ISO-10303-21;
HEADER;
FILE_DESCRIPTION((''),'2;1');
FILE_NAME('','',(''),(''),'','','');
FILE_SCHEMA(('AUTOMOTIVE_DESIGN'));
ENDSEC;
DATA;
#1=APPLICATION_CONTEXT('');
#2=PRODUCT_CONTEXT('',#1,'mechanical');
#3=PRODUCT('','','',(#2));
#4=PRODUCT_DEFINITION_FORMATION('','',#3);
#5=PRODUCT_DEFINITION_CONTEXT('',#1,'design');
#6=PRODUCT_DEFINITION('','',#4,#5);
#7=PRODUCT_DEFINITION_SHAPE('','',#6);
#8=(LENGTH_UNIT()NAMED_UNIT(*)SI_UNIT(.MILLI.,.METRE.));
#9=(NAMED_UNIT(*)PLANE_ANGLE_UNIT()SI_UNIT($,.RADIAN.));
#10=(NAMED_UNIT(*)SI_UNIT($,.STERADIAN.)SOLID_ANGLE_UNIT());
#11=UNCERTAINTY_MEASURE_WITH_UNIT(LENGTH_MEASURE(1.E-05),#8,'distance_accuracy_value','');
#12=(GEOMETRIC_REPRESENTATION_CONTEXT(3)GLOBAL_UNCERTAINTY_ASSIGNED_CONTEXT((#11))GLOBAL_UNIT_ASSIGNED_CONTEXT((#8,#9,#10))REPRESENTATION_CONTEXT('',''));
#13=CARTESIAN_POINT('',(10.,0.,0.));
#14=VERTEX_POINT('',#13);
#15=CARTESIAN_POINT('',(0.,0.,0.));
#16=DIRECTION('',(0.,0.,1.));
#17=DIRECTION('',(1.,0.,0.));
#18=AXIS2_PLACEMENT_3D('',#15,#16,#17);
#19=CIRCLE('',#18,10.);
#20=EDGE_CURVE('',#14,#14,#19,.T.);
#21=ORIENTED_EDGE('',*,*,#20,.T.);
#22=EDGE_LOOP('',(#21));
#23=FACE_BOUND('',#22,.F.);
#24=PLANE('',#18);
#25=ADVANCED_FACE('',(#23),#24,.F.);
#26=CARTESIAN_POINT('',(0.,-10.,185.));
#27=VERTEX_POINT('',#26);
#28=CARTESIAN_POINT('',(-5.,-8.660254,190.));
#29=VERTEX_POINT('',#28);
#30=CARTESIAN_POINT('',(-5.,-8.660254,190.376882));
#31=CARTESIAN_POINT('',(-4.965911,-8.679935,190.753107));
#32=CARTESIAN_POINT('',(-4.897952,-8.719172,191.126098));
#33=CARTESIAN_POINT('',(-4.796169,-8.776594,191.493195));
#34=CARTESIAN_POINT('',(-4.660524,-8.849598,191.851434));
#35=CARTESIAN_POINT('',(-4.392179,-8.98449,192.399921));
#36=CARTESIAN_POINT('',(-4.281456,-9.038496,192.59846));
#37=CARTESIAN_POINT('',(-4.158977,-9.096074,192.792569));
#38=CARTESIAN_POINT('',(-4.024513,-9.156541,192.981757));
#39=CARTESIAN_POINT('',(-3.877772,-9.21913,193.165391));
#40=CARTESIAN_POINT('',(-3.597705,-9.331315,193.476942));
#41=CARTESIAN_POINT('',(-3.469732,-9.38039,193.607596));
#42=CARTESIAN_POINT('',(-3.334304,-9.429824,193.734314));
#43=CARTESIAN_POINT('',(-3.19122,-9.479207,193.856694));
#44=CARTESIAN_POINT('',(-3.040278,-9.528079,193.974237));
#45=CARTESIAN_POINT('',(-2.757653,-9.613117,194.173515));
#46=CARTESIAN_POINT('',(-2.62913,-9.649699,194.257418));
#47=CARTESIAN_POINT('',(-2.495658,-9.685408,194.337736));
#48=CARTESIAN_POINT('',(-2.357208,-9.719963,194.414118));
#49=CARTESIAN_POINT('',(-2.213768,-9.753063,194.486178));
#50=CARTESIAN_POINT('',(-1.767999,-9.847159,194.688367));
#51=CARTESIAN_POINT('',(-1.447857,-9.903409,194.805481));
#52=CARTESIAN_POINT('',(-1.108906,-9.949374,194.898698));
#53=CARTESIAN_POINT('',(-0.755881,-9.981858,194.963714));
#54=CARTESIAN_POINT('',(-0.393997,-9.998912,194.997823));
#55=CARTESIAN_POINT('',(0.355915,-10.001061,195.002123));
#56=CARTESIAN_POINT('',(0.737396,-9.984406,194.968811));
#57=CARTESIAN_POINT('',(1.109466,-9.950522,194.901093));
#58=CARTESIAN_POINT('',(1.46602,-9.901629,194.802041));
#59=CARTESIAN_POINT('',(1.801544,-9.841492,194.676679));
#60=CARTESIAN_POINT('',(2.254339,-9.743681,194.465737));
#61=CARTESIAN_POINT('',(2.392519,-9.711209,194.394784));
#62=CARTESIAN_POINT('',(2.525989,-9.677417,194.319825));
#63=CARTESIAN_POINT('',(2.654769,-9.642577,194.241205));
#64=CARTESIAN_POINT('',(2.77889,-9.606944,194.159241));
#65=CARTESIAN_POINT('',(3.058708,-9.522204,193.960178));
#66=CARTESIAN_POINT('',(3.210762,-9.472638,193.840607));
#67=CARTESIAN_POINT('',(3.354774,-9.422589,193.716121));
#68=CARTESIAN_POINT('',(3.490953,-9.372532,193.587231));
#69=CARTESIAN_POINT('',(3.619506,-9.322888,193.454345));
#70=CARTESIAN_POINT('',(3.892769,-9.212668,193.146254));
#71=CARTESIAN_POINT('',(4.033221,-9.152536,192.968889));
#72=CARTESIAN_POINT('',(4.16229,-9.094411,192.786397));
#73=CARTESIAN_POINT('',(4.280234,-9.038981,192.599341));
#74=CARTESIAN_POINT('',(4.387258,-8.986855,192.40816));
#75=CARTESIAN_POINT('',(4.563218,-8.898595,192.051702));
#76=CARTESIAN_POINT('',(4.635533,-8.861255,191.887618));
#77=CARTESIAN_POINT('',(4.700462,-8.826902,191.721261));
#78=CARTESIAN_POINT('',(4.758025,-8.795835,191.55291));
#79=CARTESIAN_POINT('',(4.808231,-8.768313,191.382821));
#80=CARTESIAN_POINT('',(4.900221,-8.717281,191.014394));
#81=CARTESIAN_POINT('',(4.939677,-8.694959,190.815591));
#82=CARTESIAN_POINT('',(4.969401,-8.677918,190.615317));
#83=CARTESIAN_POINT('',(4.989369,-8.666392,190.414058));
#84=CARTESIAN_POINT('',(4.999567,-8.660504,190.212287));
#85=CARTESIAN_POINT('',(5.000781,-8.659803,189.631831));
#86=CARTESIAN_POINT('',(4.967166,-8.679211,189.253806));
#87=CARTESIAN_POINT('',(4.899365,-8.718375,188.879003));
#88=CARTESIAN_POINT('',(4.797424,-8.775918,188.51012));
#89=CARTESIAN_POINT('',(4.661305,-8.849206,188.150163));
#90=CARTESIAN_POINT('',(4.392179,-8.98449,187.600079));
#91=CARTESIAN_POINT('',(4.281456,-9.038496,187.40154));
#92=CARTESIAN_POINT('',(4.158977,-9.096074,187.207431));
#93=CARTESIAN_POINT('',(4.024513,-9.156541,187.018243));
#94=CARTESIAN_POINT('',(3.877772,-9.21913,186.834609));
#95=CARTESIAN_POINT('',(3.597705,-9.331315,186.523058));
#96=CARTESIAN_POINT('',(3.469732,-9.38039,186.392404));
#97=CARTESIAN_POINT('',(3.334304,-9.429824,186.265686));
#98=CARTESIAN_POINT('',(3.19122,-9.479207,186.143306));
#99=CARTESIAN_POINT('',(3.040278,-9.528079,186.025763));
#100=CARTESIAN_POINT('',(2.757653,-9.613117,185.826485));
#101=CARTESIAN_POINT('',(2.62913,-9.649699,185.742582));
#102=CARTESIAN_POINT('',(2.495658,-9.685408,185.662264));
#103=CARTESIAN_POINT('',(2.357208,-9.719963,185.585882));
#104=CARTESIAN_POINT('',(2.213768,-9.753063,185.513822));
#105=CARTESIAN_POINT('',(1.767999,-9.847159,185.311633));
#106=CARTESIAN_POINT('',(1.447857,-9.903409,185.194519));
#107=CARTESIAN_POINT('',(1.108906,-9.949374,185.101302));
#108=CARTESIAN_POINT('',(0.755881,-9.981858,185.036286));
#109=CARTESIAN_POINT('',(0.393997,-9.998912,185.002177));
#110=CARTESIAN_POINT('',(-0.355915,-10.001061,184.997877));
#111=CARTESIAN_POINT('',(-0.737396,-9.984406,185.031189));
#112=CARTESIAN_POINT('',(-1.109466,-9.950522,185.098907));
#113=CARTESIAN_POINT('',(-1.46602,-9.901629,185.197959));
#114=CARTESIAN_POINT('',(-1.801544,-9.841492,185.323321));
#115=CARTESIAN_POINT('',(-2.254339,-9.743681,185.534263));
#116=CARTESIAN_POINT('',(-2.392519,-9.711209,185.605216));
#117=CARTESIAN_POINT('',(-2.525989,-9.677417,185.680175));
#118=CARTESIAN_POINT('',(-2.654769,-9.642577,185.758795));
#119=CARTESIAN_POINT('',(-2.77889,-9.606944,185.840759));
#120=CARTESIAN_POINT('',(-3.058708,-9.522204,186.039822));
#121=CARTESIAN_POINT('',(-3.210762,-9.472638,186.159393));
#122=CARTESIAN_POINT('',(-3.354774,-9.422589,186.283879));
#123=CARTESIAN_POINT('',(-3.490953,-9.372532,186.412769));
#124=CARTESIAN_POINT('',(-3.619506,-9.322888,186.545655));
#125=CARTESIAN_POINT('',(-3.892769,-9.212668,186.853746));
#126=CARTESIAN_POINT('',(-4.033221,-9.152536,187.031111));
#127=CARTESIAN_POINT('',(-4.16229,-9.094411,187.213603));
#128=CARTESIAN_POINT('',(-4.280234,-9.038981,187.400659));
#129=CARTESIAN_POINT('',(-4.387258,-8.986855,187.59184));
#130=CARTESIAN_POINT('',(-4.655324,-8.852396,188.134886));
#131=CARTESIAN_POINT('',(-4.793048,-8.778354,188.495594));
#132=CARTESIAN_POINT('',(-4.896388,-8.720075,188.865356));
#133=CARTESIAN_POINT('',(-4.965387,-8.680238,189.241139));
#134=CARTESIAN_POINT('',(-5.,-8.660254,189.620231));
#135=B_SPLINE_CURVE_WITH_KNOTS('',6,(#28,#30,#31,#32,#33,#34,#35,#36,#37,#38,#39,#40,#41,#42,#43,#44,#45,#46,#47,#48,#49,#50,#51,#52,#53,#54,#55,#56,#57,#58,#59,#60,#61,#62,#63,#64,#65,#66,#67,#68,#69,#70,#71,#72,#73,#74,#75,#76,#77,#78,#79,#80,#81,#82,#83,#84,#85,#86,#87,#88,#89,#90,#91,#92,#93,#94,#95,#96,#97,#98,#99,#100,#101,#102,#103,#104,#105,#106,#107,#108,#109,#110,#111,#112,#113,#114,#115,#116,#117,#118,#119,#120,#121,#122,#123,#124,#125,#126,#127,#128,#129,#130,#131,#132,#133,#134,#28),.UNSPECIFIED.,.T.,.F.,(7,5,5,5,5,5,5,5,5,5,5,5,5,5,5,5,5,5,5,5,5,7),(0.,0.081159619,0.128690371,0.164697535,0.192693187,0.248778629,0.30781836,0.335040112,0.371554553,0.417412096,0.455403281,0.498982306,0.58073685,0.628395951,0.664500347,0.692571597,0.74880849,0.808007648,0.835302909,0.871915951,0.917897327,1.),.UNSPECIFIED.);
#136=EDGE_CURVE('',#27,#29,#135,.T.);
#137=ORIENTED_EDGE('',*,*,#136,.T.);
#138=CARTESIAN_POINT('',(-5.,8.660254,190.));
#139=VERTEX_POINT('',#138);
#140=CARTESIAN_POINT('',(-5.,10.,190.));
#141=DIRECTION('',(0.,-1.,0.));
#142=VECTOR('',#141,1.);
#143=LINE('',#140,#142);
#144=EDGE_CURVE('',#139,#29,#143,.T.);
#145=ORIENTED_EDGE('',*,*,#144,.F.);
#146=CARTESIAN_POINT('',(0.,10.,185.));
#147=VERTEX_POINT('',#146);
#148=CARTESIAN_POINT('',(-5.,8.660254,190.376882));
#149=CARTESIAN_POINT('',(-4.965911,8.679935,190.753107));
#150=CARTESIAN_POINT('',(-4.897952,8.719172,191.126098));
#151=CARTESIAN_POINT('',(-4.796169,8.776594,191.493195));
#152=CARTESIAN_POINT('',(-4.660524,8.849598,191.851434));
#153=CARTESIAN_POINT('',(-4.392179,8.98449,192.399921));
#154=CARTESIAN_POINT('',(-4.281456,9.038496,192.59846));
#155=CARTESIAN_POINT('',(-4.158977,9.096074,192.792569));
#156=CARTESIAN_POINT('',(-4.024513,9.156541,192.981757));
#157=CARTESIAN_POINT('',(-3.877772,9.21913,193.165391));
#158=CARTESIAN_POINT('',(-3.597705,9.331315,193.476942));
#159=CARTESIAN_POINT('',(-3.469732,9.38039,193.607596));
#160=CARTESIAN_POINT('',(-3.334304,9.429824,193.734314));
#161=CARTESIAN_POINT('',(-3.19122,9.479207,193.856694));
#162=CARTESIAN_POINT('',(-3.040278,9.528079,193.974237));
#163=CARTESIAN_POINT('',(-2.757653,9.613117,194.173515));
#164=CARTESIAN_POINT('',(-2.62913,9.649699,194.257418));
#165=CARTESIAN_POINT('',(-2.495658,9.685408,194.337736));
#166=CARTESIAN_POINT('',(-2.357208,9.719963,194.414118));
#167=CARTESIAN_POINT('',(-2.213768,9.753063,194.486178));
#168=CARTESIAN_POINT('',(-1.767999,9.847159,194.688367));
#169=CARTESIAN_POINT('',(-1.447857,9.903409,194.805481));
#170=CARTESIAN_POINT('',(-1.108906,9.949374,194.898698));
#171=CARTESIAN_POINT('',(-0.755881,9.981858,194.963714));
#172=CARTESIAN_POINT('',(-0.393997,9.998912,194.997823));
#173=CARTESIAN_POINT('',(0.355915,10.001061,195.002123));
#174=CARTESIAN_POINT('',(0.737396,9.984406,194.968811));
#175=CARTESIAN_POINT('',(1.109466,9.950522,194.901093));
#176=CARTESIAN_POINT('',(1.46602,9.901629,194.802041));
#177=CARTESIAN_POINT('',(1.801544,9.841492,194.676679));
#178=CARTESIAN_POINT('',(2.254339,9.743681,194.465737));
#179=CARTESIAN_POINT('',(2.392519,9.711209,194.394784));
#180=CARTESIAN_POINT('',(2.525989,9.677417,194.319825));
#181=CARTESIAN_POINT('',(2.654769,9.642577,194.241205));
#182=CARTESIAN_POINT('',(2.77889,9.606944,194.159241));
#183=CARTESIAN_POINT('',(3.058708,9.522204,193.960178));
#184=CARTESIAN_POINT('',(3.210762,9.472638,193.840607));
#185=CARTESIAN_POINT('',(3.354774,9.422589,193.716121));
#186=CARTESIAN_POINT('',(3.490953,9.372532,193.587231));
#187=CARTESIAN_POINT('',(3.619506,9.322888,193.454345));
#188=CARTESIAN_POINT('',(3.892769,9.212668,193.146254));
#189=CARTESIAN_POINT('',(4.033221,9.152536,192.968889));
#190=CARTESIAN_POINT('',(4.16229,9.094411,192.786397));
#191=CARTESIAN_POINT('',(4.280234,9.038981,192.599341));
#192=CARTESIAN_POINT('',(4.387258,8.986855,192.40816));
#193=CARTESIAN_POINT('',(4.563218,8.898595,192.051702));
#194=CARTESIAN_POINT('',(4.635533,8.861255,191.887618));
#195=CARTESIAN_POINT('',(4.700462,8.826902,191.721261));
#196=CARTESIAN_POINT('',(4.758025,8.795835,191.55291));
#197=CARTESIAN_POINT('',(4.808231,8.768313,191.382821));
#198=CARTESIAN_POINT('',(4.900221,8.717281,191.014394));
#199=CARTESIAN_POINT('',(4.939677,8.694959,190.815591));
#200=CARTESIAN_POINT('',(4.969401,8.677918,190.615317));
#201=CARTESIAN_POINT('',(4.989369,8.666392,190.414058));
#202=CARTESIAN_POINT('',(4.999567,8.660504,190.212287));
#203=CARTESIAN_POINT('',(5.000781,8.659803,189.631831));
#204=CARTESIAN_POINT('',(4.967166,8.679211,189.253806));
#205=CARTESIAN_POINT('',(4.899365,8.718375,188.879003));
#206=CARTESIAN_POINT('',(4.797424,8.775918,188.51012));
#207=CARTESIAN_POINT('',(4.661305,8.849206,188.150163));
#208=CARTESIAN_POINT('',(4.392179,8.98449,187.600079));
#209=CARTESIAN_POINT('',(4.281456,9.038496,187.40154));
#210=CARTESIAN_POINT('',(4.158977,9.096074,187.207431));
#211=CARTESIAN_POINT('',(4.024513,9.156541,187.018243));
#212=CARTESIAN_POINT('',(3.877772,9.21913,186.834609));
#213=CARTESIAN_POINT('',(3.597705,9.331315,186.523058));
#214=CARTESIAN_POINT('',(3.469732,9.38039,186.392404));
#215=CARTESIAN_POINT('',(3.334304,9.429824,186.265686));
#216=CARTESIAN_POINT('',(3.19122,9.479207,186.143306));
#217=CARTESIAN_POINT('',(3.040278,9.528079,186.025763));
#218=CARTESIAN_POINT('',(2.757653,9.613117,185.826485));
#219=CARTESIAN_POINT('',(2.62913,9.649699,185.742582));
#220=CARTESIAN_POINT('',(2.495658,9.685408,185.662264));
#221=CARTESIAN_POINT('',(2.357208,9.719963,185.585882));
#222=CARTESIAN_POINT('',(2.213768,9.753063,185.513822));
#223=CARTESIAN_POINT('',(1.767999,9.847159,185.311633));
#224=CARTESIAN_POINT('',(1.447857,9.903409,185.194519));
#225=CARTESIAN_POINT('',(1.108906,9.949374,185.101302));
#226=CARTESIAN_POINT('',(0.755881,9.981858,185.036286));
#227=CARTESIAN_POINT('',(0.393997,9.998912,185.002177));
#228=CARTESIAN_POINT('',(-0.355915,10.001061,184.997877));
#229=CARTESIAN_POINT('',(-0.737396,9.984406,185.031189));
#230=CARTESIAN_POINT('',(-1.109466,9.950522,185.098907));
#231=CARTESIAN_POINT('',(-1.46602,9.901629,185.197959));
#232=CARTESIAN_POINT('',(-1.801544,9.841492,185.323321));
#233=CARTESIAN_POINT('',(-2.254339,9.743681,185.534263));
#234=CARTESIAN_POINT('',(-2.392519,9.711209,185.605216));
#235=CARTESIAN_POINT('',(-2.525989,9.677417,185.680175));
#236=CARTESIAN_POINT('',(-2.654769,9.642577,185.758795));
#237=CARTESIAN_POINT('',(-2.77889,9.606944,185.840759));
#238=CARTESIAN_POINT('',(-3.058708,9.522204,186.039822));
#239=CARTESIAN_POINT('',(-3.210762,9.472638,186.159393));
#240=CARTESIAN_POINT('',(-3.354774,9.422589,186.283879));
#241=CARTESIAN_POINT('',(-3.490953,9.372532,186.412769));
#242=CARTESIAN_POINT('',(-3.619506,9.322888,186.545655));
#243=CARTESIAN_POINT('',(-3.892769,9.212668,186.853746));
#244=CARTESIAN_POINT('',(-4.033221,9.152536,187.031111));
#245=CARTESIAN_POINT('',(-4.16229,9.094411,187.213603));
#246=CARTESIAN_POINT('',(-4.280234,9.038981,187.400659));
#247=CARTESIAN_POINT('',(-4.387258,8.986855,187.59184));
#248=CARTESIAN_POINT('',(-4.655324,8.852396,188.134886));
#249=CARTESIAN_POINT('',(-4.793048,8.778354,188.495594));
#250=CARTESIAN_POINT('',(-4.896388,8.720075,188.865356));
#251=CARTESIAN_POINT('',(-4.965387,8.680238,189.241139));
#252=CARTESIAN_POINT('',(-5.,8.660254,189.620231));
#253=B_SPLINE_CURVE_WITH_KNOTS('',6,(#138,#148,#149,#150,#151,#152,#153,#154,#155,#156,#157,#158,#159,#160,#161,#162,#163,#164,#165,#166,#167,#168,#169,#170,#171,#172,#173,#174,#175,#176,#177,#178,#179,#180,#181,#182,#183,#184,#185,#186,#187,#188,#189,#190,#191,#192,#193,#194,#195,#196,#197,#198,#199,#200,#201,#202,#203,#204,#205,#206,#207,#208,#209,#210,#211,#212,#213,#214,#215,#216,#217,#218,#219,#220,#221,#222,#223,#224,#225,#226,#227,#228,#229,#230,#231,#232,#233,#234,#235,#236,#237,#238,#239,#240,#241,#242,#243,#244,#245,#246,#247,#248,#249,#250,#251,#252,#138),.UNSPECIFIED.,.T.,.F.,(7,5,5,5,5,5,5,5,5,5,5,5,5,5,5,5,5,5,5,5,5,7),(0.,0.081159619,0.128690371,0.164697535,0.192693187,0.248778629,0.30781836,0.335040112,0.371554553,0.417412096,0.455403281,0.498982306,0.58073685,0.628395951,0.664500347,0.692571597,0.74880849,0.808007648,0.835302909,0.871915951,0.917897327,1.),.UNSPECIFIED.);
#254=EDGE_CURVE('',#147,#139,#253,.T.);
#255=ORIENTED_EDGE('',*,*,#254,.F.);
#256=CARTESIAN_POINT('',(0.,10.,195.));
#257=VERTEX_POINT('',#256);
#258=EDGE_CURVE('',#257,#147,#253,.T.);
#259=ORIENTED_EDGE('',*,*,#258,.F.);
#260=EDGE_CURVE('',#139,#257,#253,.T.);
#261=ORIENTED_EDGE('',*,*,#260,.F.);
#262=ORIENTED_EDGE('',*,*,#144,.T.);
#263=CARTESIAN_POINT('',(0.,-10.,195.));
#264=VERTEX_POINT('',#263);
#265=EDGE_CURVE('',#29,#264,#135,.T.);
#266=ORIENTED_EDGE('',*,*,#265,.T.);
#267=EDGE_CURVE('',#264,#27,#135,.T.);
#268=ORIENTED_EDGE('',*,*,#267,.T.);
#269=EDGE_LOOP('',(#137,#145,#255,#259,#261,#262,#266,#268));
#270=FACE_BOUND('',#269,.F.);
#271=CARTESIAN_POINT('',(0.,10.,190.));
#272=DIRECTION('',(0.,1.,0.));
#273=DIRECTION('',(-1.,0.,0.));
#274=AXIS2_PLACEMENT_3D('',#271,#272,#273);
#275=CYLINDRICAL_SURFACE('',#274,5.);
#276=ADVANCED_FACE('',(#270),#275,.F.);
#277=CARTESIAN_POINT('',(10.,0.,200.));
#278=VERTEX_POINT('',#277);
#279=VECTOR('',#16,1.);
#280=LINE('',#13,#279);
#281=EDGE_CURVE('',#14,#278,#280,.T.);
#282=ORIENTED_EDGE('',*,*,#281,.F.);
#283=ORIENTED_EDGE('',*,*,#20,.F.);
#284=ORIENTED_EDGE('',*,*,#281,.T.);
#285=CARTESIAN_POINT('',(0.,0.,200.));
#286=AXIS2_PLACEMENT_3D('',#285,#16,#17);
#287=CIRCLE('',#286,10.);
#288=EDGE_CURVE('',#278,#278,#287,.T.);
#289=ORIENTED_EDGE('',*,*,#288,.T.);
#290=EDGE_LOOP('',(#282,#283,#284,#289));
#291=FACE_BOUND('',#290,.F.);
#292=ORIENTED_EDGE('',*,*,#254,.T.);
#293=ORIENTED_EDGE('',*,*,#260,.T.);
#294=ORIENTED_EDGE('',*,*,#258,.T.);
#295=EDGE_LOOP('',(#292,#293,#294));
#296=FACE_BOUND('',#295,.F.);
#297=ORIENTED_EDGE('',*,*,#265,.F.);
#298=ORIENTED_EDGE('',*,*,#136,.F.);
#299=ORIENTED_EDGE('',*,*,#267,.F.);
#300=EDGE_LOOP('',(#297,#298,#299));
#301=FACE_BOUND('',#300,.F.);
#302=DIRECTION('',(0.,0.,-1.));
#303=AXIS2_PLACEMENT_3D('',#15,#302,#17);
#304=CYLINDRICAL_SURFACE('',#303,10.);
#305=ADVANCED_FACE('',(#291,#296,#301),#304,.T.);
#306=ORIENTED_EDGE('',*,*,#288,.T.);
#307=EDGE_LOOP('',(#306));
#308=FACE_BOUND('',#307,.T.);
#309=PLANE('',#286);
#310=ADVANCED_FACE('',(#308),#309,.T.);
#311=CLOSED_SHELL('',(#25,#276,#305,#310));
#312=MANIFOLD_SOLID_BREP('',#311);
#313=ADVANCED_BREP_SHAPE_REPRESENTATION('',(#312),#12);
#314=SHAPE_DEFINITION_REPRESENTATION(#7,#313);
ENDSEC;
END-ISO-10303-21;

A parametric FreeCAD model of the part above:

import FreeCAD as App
import Part
import Sketcher

doc = App.newDocument("Part")
body = doc.addObject("PartDesign::Body", "Body")

# Sketch on XY plane
sketch1 = body.newObject("Sketcher::SketchObject", "Sketch")
sketch1.AttachmentSupport = (doc.getObject("XY_Plane"), [""])
sketch1.MapMode = "FlatFace"
sketch1.addGeometry(Part.Circle(App.Vector(0, 0, 0), App.Vector(0, 0, 1), 10), False)
sketch1.addConstraint([
    Sketcher.Constraint("Coincident", 0, 3, -1, 1),
    Sketcher.Constraint("Diameter", 0, 20.0),
])
pad1 = body.newObject("PartDesign::Pad", "Pad")
pad1.Profile = sketch1
pad1.Length = 200

# Sketch on XZ plane
sketch2 = body.newObject("Sketcher::SketchObject", "Sketch001")
sketch2.AttachmentSupport = (doc.getObject("XZ_Plane"), [""])
sketch2.MapMode = "FlatFace"
sketch2.AttachmentOffset = App.Placement(App.Vector(0, 0, -10), App.Rotation())
sketch2.addGeometry(Part.Circle(App.Vector(0, 190, 0), App.Vector(0, 0, 1), 5), False)
sketch2.addConstraint([
    Sketcher.Constraint("PointOnObject", 0, 3, -2),
    Sketcher.Constraint("Diameter", 0, 10.0),
    Sketcher.Constraint("DistanceY", -1, 1, 0, 3, 190.0),
])
pocket1 = body.newObject("PartDesign::Pocket", "Pocket")
pocket1.Profile = sketch2
pocket1.Length = 20
pocket1.Reversed = True

doc.recompute()
